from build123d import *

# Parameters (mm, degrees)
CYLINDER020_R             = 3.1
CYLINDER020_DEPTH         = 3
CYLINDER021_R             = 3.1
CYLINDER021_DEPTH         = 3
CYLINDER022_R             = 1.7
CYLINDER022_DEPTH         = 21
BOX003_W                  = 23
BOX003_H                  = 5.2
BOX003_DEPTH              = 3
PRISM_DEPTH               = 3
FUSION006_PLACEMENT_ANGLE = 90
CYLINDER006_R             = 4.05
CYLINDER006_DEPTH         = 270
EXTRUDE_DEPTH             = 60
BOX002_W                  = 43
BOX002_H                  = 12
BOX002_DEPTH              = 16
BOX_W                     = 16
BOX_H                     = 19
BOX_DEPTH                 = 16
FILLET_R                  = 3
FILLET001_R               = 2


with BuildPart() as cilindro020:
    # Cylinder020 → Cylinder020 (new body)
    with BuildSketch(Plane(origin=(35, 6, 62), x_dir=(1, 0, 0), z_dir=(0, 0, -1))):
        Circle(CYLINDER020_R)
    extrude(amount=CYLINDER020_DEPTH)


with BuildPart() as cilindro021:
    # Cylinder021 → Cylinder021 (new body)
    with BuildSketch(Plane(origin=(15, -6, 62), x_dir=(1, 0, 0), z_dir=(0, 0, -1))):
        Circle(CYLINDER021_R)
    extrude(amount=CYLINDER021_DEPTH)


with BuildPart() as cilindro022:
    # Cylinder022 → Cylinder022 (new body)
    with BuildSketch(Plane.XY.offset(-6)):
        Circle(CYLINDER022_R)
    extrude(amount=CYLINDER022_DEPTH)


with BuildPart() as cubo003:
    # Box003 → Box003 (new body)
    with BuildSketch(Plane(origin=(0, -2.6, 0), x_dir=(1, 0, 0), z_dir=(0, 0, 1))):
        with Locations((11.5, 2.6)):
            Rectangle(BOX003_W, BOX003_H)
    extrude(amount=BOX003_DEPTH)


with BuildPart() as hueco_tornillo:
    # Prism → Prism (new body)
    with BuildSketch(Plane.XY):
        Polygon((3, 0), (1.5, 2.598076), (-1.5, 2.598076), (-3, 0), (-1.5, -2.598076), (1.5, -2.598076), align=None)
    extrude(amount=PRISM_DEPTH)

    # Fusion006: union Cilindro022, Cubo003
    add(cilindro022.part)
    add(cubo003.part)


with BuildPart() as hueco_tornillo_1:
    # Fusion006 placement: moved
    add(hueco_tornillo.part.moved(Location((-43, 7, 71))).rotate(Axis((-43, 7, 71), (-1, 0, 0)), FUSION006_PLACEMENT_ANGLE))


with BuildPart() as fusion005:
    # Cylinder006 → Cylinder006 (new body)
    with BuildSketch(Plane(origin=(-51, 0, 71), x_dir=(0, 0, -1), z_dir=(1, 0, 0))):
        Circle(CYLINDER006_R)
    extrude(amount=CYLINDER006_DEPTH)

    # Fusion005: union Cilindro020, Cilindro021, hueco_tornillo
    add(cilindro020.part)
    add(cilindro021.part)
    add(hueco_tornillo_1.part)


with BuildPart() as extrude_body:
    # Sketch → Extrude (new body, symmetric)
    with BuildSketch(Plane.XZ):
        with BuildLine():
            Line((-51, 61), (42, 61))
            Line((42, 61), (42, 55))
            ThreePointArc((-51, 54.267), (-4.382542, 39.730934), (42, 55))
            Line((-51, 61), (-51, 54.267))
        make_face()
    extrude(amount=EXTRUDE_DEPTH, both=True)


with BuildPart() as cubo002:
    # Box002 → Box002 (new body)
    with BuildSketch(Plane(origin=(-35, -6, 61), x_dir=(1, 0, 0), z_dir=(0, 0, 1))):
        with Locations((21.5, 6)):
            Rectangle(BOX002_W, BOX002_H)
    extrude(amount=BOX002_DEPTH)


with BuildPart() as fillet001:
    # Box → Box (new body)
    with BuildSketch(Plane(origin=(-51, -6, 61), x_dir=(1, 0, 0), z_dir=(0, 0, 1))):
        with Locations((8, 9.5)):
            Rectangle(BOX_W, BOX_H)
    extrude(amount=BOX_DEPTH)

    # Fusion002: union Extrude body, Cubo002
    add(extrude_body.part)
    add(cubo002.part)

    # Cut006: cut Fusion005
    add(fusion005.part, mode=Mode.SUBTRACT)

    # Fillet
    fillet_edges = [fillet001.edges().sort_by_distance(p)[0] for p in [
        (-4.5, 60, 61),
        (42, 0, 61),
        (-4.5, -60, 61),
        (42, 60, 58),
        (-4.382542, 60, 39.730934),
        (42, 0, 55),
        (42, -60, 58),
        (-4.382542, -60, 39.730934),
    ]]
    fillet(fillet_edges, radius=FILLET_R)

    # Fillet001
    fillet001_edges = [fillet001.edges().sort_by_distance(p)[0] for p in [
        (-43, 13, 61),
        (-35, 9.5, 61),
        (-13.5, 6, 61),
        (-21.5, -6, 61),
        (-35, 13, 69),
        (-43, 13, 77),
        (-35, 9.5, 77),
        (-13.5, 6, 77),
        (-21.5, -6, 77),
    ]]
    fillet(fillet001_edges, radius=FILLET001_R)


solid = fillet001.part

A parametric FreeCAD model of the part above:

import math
import FreeCAD as App
import Part
import Sketcher
Q = App.Units.Quantity


def edges_at(feature, points):
    """Names of the edges that pass closest to the given points."""
    edges = feature.Shape.Edges
    near = lambda p: min(range(len(edges)), key=lambda i: edges[i].distToShape(Part.Vertex(*p))[0])
    return sorted({f"Edge{near(p) + 1}" for p in points})

doc = App.newDocument("Part")
body = doc.addObject("PartDesign::Body", "Body")

# Sketch on XY plane
sketch1 = body.newObject("Sketcher::SketchObject", "Sketch")
sketch1.AttachmentSupport = (doc.getObject("XY_Plane"), [""])
sketch1.MapMode = "FlatFace"
sketch1.AttachmentOffset = App.Placement(App.Vector(0, 0, 62), App.Rotation())
sketch1.addGeometry(Part.Circle(App.Vector(35, 6, 0), App.Vector(0, 0, 1), 3.1), False)
sketch1.addConstraint([
    Sketcher.Constraint("Diameter", 0, Q("6.2 mm")),
    Sketcher.Constraint("DistanceX", -1, 1, 0, 3, Q("35 mm")),
    Sketcher.Constraint("DistanceY", -1, 1, 0, 3, Q("6 mm")),
])
pad1 = body.newObject("PartDesign::Pad", "Pad")
pad1.Profile = sketch1
pad1.Length = 3
pad1.Reversed = True
body2 = doc.addObject("PartDesign::Body", "Body001")

# Sketch on XY plane
sketch2 = body2.newObject("Sketcher::SketchObject", "Sketch001")
sketch2.AttachmentSupport = (doc.getObject("XY_Plane001"), [""])
sketch2.MapMode = "FlatFace"
sketch2.AttachmentOffset = App.Placement(App.Vector(0, 0, 62), App.Rotation())
sketch2.addGeometry(Part.Circle(App.Vector(15, -6, 0), App.Vector(0, 0, 1), 3.1), False)
sketch2.addConstraint([
    Sketcher.Constraint("Diameter", 0, Q("6.2 mm")),
    Sketcher.Constraint("DistanceX", -1, 1, 0, 3, Q("15 mm")),
    Sketcher.Constraint("DistanceY", 0, 3, -1, 1, Q("6 mm")),
])
pad2 = body2.newObject("PartDesign::Pad", "Pad001")
pad2.Profile = sketch2
pad2.Length = 3
pad2.Reversed = True
body3 = doc.addObject("PartDesign::Body", "Body002")

# Sketch on XY plane
sketch3 = body3.newObject("Sketcher::SketchObject", "Sketch002")
sketch3.AttachmentSupport = (doc.getObject("XY_Plane002"), [""])
sketch3.MapMode = "FlatFace"
sketch3.AttachmentOffset = App.Placement(App.Vector(0, 0, -6), App.Rotation())
sketch3.addGeometry(Part.Circle(App.Vector(0, 0, 0), App.Vector(0, 0, 1), 1.7), False)
sketch3.addConstraint([
    Sketcher.Constraint("Coincident", 0, 3, -1, 1),
    Sketcher.Constraint("Diameter", 0, Q("3.4 mm")),
])
pad3 = body3.newObject("PartDesign::Pad", "Pad002")
pad3.Profile = sketch3
pad3.Length = 21
body4 = doc.addObject("PartDesign::Body", "Body003")

# Sketch on XY plane
sketch4 = body4.newObject("Sketcher::SketchObject", "Sketch003")
sketch4.AttachmentSupport = (doc.getObject("XY_Plane003"), [""])
sketch4.MapMode = "FlatFace"
sketch4.addGeometry([
    Part.LineSegment(App.Vector(0, 3, 0), App.Vector(0, -3, 0)),
    Part.LineSegment(App.Vector(0, -3, 0), App.Vector(23, -3, 0)),
    Part.LineSegment(App.Vector(23, -3, 0), App.Vector(23, 3, 0)),
    Part.LineSegment(App.Vector(23, 3, 0), App.Vector(0, 3, 0)),
], False)
sketch4.addConstraint([
    Sketcher.Constraint("Coincident", 0, 2, 1, 1),
    Sketcher.Constraint("Coincident", 1, 2, 2, 1),
    Sketcher.Constraint("Coincident", 2, 2, 3, 1),
    Sketcher.Constraint("Coincident", 3, 2, 0, 1),
    Sketcher.Constraint("Vertical", 0),
    Sketcher.Constraint("Horizontal", 1),
    Sketcher.Constraint("Vertical", 2),
    Sketcher.Constraint("Horizontal", 3),
    Sketcher.Constraint("Symmetric", 0, 2, 3, 2, -1, 1),
    Sketcher.Constraint("DistanceX", 1, 1, 1, 2, Q("23 mm")),
    Sketcher.Constraint("DistanceY", 0, 2, 0, 1, Q("5.2 mm")),
])
pad4 = body4.newObject("PartDesign::Pad", "Pad003")
pad4.Profile = sketch4
pad4.Length = 3
body5 = doc.addObject("PartDesign::Body", "Body004")

# Sketch on XY plane
sketch5 = body5.newObject("Sketcher::SketchObject", "Sketch004")
sketch5.AttachmentSupport = (doc.getObject("XY_Plane004"), [""])
sketch5.MapMode = "FlatFace"
sketch5.addGeometry([
    Part.LineSegment(App.Vector(3, 0, 0), App.Vector(1.5, 2.6, 0)),  # 0
    Part.LineSegment(App.Vector(1.5, 2.6, 0), App.Vector(-1.5, 2.6, 0)),  # 1
    Part.LineSegment(App.Vector(-1.5, 2.6, 0), App.Vector(-3, 0, 0)),  # 2
    Part.LineSegment(App.Vector(-3, 0, 0), App.Vector(-1.5, -2.6, 0)),  # 3
    Part.LineSegment(App.Vector(-1.5, -2.6, 0), App.Vector(1.5, -2.6, 0)),  # 4
    Part.LineSegment(App.Vector(1.5, -2.6, 0), App.Vector(3, 0, 0)),  # 5
], False)
sketch5.addConstraint([
    Sketcher.Constraint("Coincident", 0, 2, 1, 1),
    Sketcher.Constraint("Coincident", 1, 2, 2, 1),
    Sketcher.Constraint("Coincident", 2, 2, 3, 1),
    Sketcher.Constraint("Coincident", 3, 2, 4, 1),
    Sketcher.Constraint("Coincident", 4, 2, 5, 1),
    Sketcher.Constraint("Coincident", 5, 2, 0, 1),
    Sketcher.Constraint("Horizontal", 1),
    Sketcher.Constraint("Horizontal", 4),
    Sketcher.Constraint("Symmetric", 0, 2, 3, 2, -1, 1),
    Sketcher.Constraint("Symmetric", 2, 2, 5, 2, -1, 1),
    Sketcher.Constraint("PointOnObject", 2, 2, -1),
    Sketcher.Constraint("Parallel", 2, 5),
    Sketcher.Constraint("Vertical", 1, 2, 3, 2),
    Sketcher.Constraint("DistanceX", 1, 2, 1, 1, Q("3 mm")),
    Sketcher.Constraint("Angle", 0, Q("120.000002 deg")),
    Sketcher.Constraint("Distance", 0, Q("3 mm")),
])
pad5 = body5.newObject("PartDesign::Pad", "Pad004")
pad5.Profile = sketch5
pad5.Length = 3
doc.recompute()

boolean = body5.newObject("PartDesign::Boolean", "Boolean")
boolean.Type = "Fuse"
boolean.addObjects([body3])
doc.recompute()

boolean2 = body5.newObject("PartDesign::Boolean", "Boolean001")
boolean2.Type = "Fuse"
boolean2.addObjects([body4])
body6 = doc.addObject("PartDesign::Body", "Body005")
doc.recompute()

body5.Placement = App.Placement(App.Vector(-43, 7, 71), App.Rotation(App.Vector(-1, 0, 0), 90))
boolean3 = body6.newObject("PartDesign::Boolean", "Boolean002")
boolean3.Type = "Fuse"
boolean3.addObjects([body5])
body7 = doc.addObject("PartDesign::Body", "Body006")
body7.AllowCompound = True

# Sketch on YZ plane
sketch6 = body7.newObject("Sketcher::SketchObject", "Sketch005")
sketch6.AttachmentSupport = (doc.getObject("YZ_Plane006"), [""])
sketch6.MapMode = "FlatFace"
sketch6.AttachmentOffset = App.Placement(App.Vector(0, 0, -51), App.Rotation())
sketch6.addGeometry(Part.Circle(App.Vector(0, 71, 0), App.Vector(0, 0, 1), 4), False)
sketch6.addConstraint([
    Sketcher.Constraint("PointOnObject", 0, 3, -2),
    Sketcher.Constraint("Diameter", 0, Q("8.1 mm")),
    Sketcher.Constraint("DistanceY", -1, 1, 0, 3, Q("71 mm")),
])
pad6 = body7.newObject("PartDesign::Pad", "Pad005")
pad6.Profile = sketch6
pad6.Length = 270
doc.recompute()

boolean4 = body7.newObject("PartDesign::Boolean", "Boolean003")
boolean4.Type = "Fuse"
boolean4.addObjects([body])
doc.recompute()

boolean5 = body7.newObject("PartDesign::Boolean", "Boolean004")
boolean5.Type = "Fuse"
boolean5.addObjects([body2])
doc.recompute()

boolean6 = body7.newObject("PartDesign::Boolean", "Boolean005")
boolean6.Type = "Fuse"
boolean6.addObjects([body6])
body8 = doc.addObject("PartDesign::Body", "Body007")

# Sketch on XZ plane
sketch7 = body8.newObject("Sketcher::SketchObject", "Sketch006")
sketch7.AttachmentSupport = (doc.getObject("XZ_Plane007"), [""])
sketch7.MapMode = "FlatFace"
sketch7.addGeometry([
    Part.LineSegment(App.Vector(42, 61, 0), App.Vector(-51, 61, 0)),
    Part.LineSegment(App.Vector(-51, 61, 0), App.Vector(-51, 54, 0)),
    Part.ArcOfCircle(Part.Circle(App.Vector(-5, 120, 0), App.Vector(0, 0, 1), 80), math.radians(-125), math.radians(-54)),
    Part.LineSegment(App.Vector(42, 55, 0), App.Vector(42, 61, 0)),
], False)
sketch7.addConstraint([
    Sketcher.Constraint("Coincident", 0, 2, 1, 1),
    Sketcher.Constraint("Coincident", 1, 2, 2, 1),
    Sketcher.Constraint("Coincident", 2, 2, 3, 1),
    Sketcher.Constraint("Coincident", 3, 2, 0, 1),
    Sketcher.Constraint("Horizontal", 0),
    Sketcher.Constraint("Vertical", 1),
    Sketcher.Constraint("Vertical", 3),
    Sketcher.Constraint("Radius", 2, Q("79.999999 mm")),
    Sketcher.Constraint("DistanceX", 0, 2, 0, 1, Q("93 mm")),
    Sketcher.Constraint("DistanceY", 3, 1, 3, 2, Q("6 mm")),
    Sketcher.Constraint("DistanceX", 0, 2, -1, 1, Q("51 mm")),
    Sketcher.Constraint("DistanceY", -1, 1, 0, 2, Q("61 mm")),
    Sketcher.Constraint("DistanceY", 1, 2, 1, 1, Q("6.733 mm")),
])
pad7 = body8.newObject("PartDesign::Pad", "Pad006")
pad7.Profile = sketch7
pad7.Length = 120
pad7.Midplane = True
body9 = doc.addObject("PartDesign::Body", "Body008")

# Sketch on XY plane
sketch8 = body9.newObject("Sketcher::SketchObject", "Sketch007")
sketch8.AttachmentSupport = (doc.getObject("XY_Plane008"), [""])
sketch8.MapMode = "FlatFace"
sketch8.AttachmentOffset = App.Placement(App.Vector(0, 0, 61), App.Rotation())
sketch8.addGeometry([
    Part.LineSegment(App.Vector(-35, 6, 0), App.Vector(-35, -6, 0)),
    Part.LineSegment(App.Vector(-35, -6, 0), App.Vector(8, -6, 0)),
    Part.LineSegment(App.Vector(8, -6, 0), App.Vector(8, 6, 0)),
    Part.LineSegment(App.Vector(8, 6, 0), App.Vector(-35, 6, 0)),
], False)
sketch8.addConstraint([
    Sketcher.Constraint("Coincident", 0, 2, 1, 1),
    Sketcher.Constraint("Coincident", 1, 2, 2, 1),
    Sketcher.Constraint("Coincident", 2, 2, 3, 1),
    Sketcher.Constraint("Coincident", 3, 2, 0, 1),
    Sketcher.Constraint("Vertical", 0),
    Sketcher.Constraint("Horizontal", 1),
    Sketcher.Constraint("Vertical", 2),
    Sketcher.Constraint("Horizontal", 3),
    Sketcher.Constraint("DistanceX", 1, 1, 1, 2, Q("43 mm")),
    Sketcher.Constraint("DistanceY", 0, 2, 0, 1, Q("12 mm")),
    Sketcher.Constraint("DistanceX", 0, 2, -1, 1, Q("35 mm")),
    Sketcher.Constraint("DistanceY", 0, 2, -1, 1, Q("6 mm")),
])
pad8 = body9.newObject("PartDesign::Pad", "Pad007")
pad8.Profile = sketch8
pad8.Length = 16
body10 = doc.addObject("PartDesign::Body", "Body009")

# Sketch on XY plane
sketch9 = body10.newObject("Sketcher::SketchObject", "Sketch008")
sketch9.AttachmentSupport = (doc.getObject("XY_Plane009"), [""])
sketch9.MapMode = "FlatFace"
sketch9.AttachmentOffset = App.Placement(App.Vector(0, 0, 61), App.Rotation())
sketch9.addGeometry([
    Part.LineSegment(App.Vector(-51, 13, 0), App.Vector(-51, -6, 0)),
    Part.LineSegment(App.Vector(-51, -6, 0), App.Vector(-35, -6, 0)),
    Part.LineSegment(App.Vector(-35, -6, 0), App.Vector(-35, 13, 0)),
    Part.LineSegment(App.Vector(-35, 13, 0), App.Vector(-51, 13, 0)),
], False)
sketch9.addConstraint([
    Sketcher.Constraint("Coincident", 0, 2, 1, 1),
    Sketcher.Constraint("Coincident", 1, 2, 2, 1),
    Sketcher.Constraint("Coincident", 2, 2, 3, 1),
    Sketcher.Constraint("Coincident", 3, 2, 0, 1),
    Sketcher.Constraint("Vertical", 0),
    Sketcher.Constraint("Horizontal", 1),
    Sketcher.Constraint("Vertical", 2),
    Sketcher.Constraint("Horizontal", 3),
    Sketcher.Constraint("DistanceX", 1, 1, 1, 2, Q("16 mm")),
    Sketcher.Constraint("DistanceY", 0, 2, 0, 1, Q("19 mm")),
    Sketcher.Constraint("DistanceX", 0, 2, -1, 1, Q("51 mm")),
    Sketcher.Constraint("DistanceY", 0, 2, -1, 1, Q("6 mm")),
])
pad9 = body10.newObject("PartDesign::Pad", "Pad008")
pad9.Profile = sketch9
pad9.Length = 16
doc.recompute()

boolean7 = body10.newObject("PartDesign::Boolean", "Boolean006")
boolean7.Type = "Fuse"
boolean7.addObjects([body8])
doc.recompute()

boolean8 = body10.newObject("PartDesign::Boolean", "Boolean007")
boolean8.Type = "Fuse"
boolean8.addObjects([body9])
doc.recompute()

boolean9 = body10.newObject("PartDesign::Boolean", "Boolean008")
boolean9.Type = "Cut"
boolean9.addObjects([body7])
doc.recompute()

fillet = body10.newObject("PartDesign::Fillet", "Fillet")
fillet.Base = (boolean9, edges_at(boolean9, [
    (-4.5, 60, 61),
    (42, 0, 61),
    (-4.5, -60, 61),
    (42, 60, 58),
    (-4.383, 60, 39.731),
    (42, 0, 55),
    (42, -60, 58),
    (-4.383, -60, 39.731),
]))
fillet.Radius = 3
doc.recompute()

fillet2 = body10.newObject("PartDesign::Fillet", "Fillet001")
fillet2.Base = (fillet, edges_at(fillet, [
    (-43, 13, 61),
    (-35, 9.5, 61),
    (-13.5, 6, 61),
    (-21.5, -6, 61),
    (-35, 13, 69),
    (-43, 13, 77),
    (-35, 9.5, 77),
    (-13.5, 6, 77),
    (-21.5, -6, 77),
]))
fillet2.Radius = 2

doc.recompute()
